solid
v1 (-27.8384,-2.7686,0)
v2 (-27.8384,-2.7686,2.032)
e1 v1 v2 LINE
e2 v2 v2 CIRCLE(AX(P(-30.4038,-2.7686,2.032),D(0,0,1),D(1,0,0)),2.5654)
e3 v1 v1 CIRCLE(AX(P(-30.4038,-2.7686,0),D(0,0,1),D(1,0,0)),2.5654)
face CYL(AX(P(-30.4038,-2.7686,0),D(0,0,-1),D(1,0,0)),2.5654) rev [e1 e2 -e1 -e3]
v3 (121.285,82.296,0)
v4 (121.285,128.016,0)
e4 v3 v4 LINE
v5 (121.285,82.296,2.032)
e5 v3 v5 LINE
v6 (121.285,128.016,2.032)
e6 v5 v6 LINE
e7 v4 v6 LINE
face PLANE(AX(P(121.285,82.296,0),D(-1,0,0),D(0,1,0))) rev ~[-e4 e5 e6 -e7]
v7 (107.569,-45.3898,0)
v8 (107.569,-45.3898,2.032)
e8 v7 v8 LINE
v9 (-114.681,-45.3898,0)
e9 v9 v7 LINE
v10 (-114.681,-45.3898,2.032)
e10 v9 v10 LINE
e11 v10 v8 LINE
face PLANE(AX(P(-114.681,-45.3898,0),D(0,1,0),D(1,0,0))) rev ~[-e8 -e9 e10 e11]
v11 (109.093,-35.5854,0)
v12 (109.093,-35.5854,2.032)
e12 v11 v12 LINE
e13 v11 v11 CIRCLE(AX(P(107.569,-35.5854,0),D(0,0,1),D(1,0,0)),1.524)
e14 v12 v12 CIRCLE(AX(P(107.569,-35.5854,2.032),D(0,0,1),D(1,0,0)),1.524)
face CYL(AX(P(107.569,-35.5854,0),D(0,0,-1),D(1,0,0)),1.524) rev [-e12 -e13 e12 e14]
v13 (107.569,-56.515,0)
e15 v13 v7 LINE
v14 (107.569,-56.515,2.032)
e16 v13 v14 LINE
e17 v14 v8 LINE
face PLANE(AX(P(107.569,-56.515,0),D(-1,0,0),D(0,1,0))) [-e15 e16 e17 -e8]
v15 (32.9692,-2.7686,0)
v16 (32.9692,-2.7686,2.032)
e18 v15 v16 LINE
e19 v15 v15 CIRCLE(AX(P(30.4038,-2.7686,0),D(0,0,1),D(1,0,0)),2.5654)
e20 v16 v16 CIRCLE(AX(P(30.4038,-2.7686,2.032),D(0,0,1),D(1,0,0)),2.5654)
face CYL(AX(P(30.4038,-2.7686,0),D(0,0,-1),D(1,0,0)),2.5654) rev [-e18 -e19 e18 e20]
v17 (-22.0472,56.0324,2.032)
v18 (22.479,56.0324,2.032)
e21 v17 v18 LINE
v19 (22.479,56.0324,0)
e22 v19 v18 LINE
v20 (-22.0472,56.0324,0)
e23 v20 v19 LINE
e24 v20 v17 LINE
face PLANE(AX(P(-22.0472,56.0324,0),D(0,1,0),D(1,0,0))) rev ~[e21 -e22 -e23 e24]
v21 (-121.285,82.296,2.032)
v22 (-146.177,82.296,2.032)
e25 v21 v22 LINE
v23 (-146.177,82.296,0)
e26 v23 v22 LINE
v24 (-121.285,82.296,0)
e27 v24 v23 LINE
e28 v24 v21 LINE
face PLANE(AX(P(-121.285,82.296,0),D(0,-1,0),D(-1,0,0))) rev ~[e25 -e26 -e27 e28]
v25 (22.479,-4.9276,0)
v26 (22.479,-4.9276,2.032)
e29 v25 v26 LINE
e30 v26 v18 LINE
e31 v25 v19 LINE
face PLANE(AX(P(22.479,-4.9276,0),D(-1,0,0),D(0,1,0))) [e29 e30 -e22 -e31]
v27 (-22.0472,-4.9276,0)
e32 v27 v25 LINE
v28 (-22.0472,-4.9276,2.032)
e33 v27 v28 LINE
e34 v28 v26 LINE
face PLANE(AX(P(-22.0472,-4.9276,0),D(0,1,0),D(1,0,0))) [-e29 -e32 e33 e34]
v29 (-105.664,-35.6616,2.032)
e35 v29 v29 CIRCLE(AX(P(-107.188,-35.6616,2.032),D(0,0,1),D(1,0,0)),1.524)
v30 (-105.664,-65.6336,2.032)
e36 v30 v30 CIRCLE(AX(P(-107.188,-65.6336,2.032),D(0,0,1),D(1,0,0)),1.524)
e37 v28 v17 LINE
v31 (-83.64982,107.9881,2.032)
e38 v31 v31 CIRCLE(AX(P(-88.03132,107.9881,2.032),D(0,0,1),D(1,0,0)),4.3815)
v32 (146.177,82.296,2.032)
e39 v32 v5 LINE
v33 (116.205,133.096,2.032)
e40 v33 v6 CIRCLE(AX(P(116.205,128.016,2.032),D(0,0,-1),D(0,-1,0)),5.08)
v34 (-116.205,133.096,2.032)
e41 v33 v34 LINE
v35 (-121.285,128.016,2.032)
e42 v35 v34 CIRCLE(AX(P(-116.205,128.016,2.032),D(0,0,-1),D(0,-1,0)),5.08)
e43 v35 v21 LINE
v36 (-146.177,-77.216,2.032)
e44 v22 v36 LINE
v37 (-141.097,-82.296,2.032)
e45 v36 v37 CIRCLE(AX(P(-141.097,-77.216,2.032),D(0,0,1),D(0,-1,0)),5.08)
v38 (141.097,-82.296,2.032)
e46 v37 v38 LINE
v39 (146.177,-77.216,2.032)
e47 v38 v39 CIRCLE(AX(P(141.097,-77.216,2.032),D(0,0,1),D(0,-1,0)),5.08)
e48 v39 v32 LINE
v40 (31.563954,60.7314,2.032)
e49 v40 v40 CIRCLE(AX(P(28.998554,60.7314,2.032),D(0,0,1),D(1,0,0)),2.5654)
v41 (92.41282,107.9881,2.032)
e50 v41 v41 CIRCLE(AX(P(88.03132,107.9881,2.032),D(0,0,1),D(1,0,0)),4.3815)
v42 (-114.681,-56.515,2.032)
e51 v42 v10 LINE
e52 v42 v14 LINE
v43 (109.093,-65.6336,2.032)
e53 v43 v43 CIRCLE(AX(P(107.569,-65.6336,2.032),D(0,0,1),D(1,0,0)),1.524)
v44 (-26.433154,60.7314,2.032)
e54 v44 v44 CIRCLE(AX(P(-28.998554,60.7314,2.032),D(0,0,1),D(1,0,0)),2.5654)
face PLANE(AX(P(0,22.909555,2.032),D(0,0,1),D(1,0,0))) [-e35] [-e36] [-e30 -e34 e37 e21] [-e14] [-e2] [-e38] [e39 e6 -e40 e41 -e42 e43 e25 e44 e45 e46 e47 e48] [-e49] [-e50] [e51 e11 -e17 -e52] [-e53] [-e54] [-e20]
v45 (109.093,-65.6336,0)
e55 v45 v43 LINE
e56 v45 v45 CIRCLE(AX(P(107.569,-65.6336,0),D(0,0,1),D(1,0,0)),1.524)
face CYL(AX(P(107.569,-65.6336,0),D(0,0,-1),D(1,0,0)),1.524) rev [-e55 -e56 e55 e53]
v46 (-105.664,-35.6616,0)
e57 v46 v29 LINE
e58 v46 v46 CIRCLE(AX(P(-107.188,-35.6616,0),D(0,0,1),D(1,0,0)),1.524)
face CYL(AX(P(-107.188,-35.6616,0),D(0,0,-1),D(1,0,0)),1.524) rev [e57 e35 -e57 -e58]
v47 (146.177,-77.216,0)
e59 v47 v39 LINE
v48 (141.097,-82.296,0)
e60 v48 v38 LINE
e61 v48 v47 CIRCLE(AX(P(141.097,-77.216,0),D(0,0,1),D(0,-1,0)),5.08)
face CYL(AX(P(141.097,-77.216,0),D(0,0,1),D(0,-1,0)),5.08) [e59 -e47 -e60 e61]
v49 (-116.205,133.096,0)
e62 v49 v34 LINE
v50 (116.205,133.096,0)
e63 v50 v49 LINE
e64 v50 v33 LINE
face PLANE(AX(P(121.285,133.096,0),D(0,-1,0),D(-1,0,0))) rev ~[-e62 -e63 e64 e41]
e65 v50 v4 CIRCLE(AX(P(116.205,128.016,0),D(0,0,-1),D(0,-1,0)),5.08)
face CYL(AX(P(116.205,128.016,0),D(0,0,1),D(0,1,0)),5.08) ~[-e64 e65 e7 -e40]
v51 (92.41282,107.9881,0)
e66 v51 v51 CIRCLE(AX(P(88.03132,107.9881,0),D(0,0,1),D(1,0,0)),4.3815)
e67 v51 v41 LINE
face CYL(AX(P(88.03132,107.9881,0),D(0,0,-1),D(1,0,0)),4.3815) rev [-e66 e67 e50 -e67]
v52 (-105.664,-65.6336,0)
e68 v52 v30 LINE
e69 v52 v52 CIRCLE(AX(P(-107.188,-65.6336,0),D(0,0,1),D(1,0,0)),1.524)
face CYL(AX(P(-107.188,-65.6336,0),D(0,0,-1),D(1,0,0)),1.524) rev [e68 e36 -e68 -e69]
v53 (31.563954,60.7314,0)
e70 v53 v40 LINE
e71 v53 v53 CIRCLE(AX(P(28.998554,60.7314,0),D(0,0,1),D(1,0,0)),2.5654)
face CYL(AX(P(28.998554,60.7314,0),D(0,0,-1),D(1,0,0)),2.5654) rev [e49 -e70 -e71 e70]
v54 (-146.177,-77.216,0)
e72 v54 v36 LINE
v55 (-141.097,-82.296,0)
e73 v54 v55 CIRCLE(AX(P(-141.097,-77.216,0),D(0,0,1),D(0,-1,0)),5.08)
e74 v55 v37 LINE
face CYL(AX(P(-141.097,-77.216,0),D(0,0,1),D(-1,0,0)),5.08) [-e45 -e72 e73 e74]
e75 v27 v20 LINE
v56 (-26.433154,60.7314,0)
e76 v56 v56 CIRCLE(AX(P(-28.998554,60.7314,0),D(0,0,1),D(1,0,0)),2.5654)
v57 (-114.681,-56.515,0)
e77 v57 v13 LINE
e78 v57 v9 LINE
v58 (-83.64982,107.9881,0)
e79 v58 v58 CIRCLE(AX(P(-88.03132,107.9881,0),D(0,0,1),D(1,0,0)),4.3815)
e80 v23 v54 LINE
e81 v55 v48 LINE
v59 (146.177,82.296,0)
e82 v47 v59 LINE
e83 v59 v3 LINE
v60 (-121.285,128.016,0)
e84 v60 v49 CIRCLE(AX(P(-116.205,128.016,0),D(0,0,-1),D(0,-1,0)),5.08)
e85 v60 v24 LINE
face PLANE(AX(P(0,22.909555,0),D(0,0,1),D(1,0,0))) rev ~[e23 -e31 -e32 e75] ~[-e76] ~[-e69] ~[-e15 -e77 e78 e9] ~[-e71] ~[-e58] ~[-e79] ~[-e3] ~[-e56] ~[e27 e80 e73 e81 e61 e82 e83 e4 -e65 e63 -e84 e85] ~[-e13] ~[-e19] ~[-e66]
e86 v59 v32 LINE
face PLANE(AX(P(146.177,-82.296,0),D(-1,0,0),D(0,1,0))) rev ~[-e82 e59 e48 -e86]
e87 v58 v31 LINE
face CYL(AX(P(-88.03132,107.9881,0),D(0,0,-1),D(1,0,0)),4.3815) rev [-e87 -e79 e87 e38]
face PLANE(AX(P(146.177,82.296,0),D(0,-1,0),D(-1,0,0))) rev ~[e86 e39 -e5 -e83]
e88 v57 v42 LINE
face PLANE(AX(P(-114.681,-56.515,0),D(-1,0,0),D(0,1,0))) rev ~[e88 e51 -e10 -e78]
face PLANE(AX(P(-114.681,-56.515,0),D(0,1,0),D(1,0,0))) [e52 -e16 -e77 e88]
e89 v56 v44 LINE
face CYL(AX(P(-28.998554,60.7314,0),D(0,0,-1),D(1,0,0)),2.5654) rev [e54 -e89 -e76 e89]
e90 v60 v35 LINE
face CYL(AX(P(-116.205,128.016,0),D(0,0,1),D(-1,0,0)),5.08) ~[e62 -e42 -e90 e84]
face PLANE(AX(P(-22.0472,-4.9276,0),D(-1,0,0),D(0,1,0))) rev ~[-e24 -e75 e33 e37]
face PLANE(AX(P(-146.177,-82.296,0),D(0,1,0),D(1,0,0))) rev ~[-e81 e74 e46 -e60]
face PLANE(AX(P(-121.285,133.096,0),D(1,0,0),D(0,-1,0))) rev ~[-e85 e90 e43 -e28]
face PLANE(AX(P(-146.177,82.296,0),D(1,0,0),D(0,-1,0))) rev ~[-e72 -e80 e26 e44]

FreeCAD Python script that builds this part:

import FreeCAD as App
import Part
import Sketcher
from FreeCAD import Vector
Q = App.Units.Quantity


def edges_at(feature, points):
    """Names of the edges that pass closest to the given points."""
    edges = feature.Shape.Edges
    near = lambda p: min(range(len(edges)), key=lambda i: edges[i].distToShape(Part.Vertex(*p))[0])
    return sorted({f"Edge{near(p) + 1}" for p in points})

doc = App.newDocument("Part")
body = doc.addObject("PartDesign::Body", "Body")

# Sketch on XY plane
sketch1 = doc.addObject("Sketcher::SketchObject", "Sketch")
body.addObject(sketch1)
sketch1.AttachmentSupport = (doc.XY_Plane, [""])
sketch1.MapMode = "FlatFace"
sketch1.addGeometry(Part.LineSegment(Vector(-146.2, 82.3, 0), Vector(-146.2, -82.3, 0)), False)
sketch1.addGeometry(Part.LineSegment(Vector(-146.2, -82.3, 0), Vector(146.2, -82.3, 0)), False)
sketch1.addGeometry(Part.LineSegment(Vector(146.2, -82.3, 0), Vector(146.2, 82.3, 0)), False)
sketch1.addGeometry(Part.LineSegment(Vector(146.2, 82.3, 0), Vector(121.3, 82.3, 0)), False)
sketch1.addGeometry(Part.LineSegment(Vector(121.3, 82.3, 0), Vector(121.3, 133.1, 0)), False)
sketch1.addGeometry(Part.LineSegment(Vector(121.3, 133.1, 0), Vector(-121.3, 133.1, 0)), False)
sketch1.addGeometry(Part.LineSegment(Vector(-121.3, 133.1, 0), Vector(-121.3, 82.3, 0)), False)
sketch1.addGeometry(Part.LineSegment(Vector(-121.3, 82.3, 0), Vector(-146.2, 82.3, 0)), False)
sketch1.addGeometry(Part.Circle(Vector(-107.2, -65.6, 0), Vector(0, 0, 1), 1.5), False)
sketch1.addGeometry(Part.Circle(Vector(-107.2, -35.7, 0), Vector(0, 0, 1), 1.5), False)
sketch1.addGeometry(Part.LineSegment(Vector(107.6, -56.5, 0), Vector(-114.7, -56.5, 0)), False)
sketch1.addGeometry(Part.LineSegment(Vector(-114.7, -56.5, 0), Vector(-114.7, -45.4, 0)), False)
sketch1.addGeometry(Part.LineSegment(Vector(-114.7, -45.4, 0), Vector(107.6, -45.4, 0)), False)
sketch1.addGeometry(Part.LineSegment(Vector(107.6, -45.4, 0), Vector(107.6, -56.5, 0)), False)
sketch1.addGeometry(Part.Circle(Vector(-30.4, -2.8, 0), Vector(0, 0, 1), 2.6), False)
sketch1.addGeometry(Part.Circle(Vector(107.6, -65.6, 0), Vector(0, 0, 1), 1.5), False)
sketch1.addGeometry(Part.Circle(Vector(107.6, -35.6, 0), Vector(0, 0, 1), 1.5), False)
sketch1.addGeometry(Part.Circle(Vector(30.4, -2.8, 0), Vector(0, 0, 1), 2.6), False)
sketch1.addGeometry(Part.Circle(Vector(-29, 60.7, 0), Vector(0, 0, 1), 2.6), False)
sketch1.addGeometry(Part.Circle(Vector(-88, 108, 0), Vector(0, 0, 1), 4.4), False)
sketch1.addGeometry(Part.LineSegment(Vector(22.5, -4.9, 0), Vector(-22, -4.9, 0)), False)
sketch1.addGeometry(Part.LineSegment(Vector(-22, -4.9, 0), Vector(-22, 56, 0)), False)
sketch1.addGeometry(Part.LineSegment(Vector(-22, 56, 0), Vector(22.5, 56, 0)), False)
sketch1.addGeometry(Part.LineSegment(Vector(22.5, 56, 0), Vector(22.5, -4.9, 0)), False)
sketch1.addGeometry(Part.Circle(Vector(29, 60.7, 0), Vector(0, 0, 1), 2.6), False)
sketch1.addGeometry(Part.Circle(Vector(88, 108, 0), Vector(0, 0, 1), 4.4), False)
sketch1.addConstraint(Sketcher.Constraint("Coincident", 0, 2, 1, 1))
sketch1.addConstraint(Sketcher.Constraint("Coincident", 1, 2, 2, 1))
sketch1.addConstraint(Sketcher.Constraint("Coincident", 2, 2, 3, 1))
sketch1.addConstraint(Sketcher.Constraint("Coincident", 3, 2, 4, 1))
sketch1.addConstraint(Sketcher.Constraint("Coincident", 4, 2, 5, 1))
sketch1.addConstraint(Sketcher.Constraint("Coincident", 5, 2, 6, 1))
sketch1.addConstraint(Sketcher.Constraint("Coincident", 6, 2, 7, 1))
sketch1.addConstraint(Sketcher.Constraint("Coincident", 7, 2, 0, 1))
sketch1.addConstraint(Sketcher.Constraint("Coincident", 10, 2, 11, 1))
sketch1.addConstraint(Sketcher.Constraint("Coincident", 11, 2, 12, 1))
sketch1.addConstraint(Sketcher.Constraint("Coincident", 12, 2, 13, 1))
sketch1.addConstraint(Sketcher.Constraint("Coincident", 13, 2, 10, 1))
sketch1.addConstraint(Sketcher.Constraint("Coincident", 20, 2, 21, 1))
sketch1.addConstraint(Sketcher.Constraint("Coincident", 21, 2, 22, 1))
sketch1.addConstraint(Sketcher.Constraint("Coincident", 22, 2, 23, 1))
sketch1.addConstraint(Sketcher.Constraint("Coincident", 23, 2, 20, 1))
sketch1.addConstraint(Sketcher.Constraint("Vertical", 0))
sketch1.addConstraint(Sketcher.Constraint("Horizontal", 1))
sketch1.addConstraint(Sketcher.Constraint("Vertical", 2))
sketch1.addConstraint(Sketcher.Constraint("Horizontal", 3))
sketch1.addConstraint(Sketcher.Constraint("Vertical", 4))
sketch1.addConstraint(Sketcher.Constraint("Horizontal", 5))
sketch1.addConstraint(Sketcher.Constraint("Vertical", 6))
sketch1.addConstraint(Sketcher.Constraint("Horizontal", 7))
sketch1.addConstraint(Sketcher.Constraint("Horizontal", 10))
sketch1.addConstraint(Sketcher.Constraint("Vertical", 11))
sketch1.addConstraint(Sketcher.Constraint("Horizontal", 12))
sketch1.addConstraint(Sketcher.Constraint("Vertical", 13))
sketch1.addConstraint(Sketcher.Constraint("Horizontal", 20))
sketch1.addConstraint(Sketcher.Constraint("Vertical", 21))
sketch1.addConstraint(Sketcher.Constraint("Horizontal", 22))
sketch1.addConstraint(Sketcher.Constraint("Vertical", 23))
sketch1.addConstraint(Sketcher.Constraint("Equal", 8, 9))
sketch1.addConstraint(Sketcher.Constraint("Equal", 9, 15))
sketch1.addConstraint(Sketcher.Constraint("Equal", 15, 16))
sketch1.addConstraint(Sketcher.Constraint("Equal", 14, 17))
sketch1.addConstraint(Sketcher.Constraint("Equal", 17, 18))
sketch1.addConstraint(Sketcher.Constraint("Equal", 18, 24))
sketch1.addConstraint(Sketcher.Constraint("Equal", 19, 25))
sketch1.addConstraint(Sketcher.Constraint("Symmetric", 0, 2, 2, 2, -1, 1))
sketch1.addConstraint(Sketcher.Constraint("Symmetric", 14, 3, 17, 3, -2))
sketch1.addConstraint(Sketcher.Constraint("Symmetric", 18, 3, 24, 3, -2))
sketch1.addConstraint(Sketcher.Constraint("Symmetric", 19, 3, 25, 3, -2))
sketch1.addConstraint(Sketcher.Constraint("Symmetric", 3, 2, 6, 2, -2))
sketch1.addConstraint(Sketcher.Constraint("Horizontal", 8, 3, 15, 3))
sketch1.addConstraint(Sketcher.Constraint("Vertical", 8, 3, 9, 3))
sketch1.addConstraint(Sketcher.Constraint("Vertical", 15, 3, 16, 3))
sketch1.addConstraint(Sketcher.Constraint("Vertical", 16, 3, 12, 2))
sketch1.addConstraint(Sketcher.Constraint("Diameter", 8, Q("0.12 in")))
sketch1.addConstraint(Sketcher.Constraint("DistanceY", 4, 1, 4, 2, Q("2 in")))
sketch1.addConstraint(Sketcher.Constraint("Diameter", 14, Q("0.202 in")))
sketch1.addConstraint(Sketcher.Constraint("Diameter", 19, Q("0.345 in")))
sketch1.addConstraint(Sketcher.Constraint("DistanceY", 21, 1, 21, 2, Q("2.4 in")))
sketch1.addConstraint(Sketcher.Constraint("DistanceX", 1, 1, 1, 2, Q("11.51 in")))
sketch1.addConstraint(Sketcher.Constraint("DistanceX", 3, 2, 3, 1, Q("0.98 in")))
sketch1.addConstraint(Sketcher.Constraint("DistanceX", 10, 2, 10, 1, Q("8.75 in")))
sketch1.addConstraint(Sketcher.Constraint("DistanceY", 0, 2, 0, 1, Q("6.48 in")))
sketch1.addConstraint(Sketcher.Constraint("DistanceY", 14, 3, 18, 3, Q("2.5 in")))
sketch1.addConstraint(Sketcher.Constraint("DistanceX", 20, 2, 20, 1, Q("1.753 in")))
sketch1.addConstraint(Sketcher.Constraint("DistanceY", 11, 1, 11, 2, Q("0.438 in")))
sketch1.addConstraint(Sketcher.Constraint("DistanceX", 8, 3, -1, 1, Q("4.22 in")))
sketch1.addConstraint(Sketcher.Constraint("DistanceY", 8, 3, 9, 3, Q("1.18 in")))
sketch1.addConstraint(Sketcher.Constraint("DistanceX", 15, 3, 1, 2, Q("1.52 in")))
sketch1.addConstraint(Sketcher.Constraint("DistanceY", 9, 3, 20, 2, Q("1.21 in")))
sketch1.addConstraint(Sketcher.Constraint("DistanceY", 8, 3, -1, 1, Q("2.584 in")))
sketch1.addConstraint(Sketcher.Constraint("DistanceX", 14, 3, -1, 1, Q("1.197 in")))
sketch1.addConstraint(Sketcher.Constraint("DistanceY", 14, 3, -1, 1, Q("0.109 in")))
sketch1.addConstraint(Sketcher.Constraint("DistanceY", 16, 3, -1, 1, Q("1.401 in")))
sketch1.addConstraint(Sketcher.Constraint("DistanceY", 10, 2, -1, 1, Q("2.225 in")))
sketch1.addConstraint(Sketcher.Constraint("DistanceX", 20, 2, -1, 1, Q("0.868 in")))
sketch1.addConstraint(Sketcher.Constraint("DistanceX", 19, 3, -1, 1, Q("3.4658 in")))
sketch1.addConstraint(Sketcher.Constraint("DistanceY", -1, 1, 19, 3, Q("4.2515 in")))
sketch1.addConstraint(Sketcher.Constraint("DistanceX", 18, 3, -1, 1, 28.998554))
pad1 = doc.addObject("PartDesign::Pad", "Pad")
body.addObject(pad1)
pad1.Profile = sketch1
pad1.Length = Q("0.08 in")
doc.recompute()

fillet = doc.addObject("PartDesign::Fillet", "Fillet")
body.addObject(fillet)
fillet.Base = (pad1, edges_at(pad1, [
    (121.285, 133.096, 1.016),
    (-121.285, 133.096, 1.016),
    (146.177, -82.296, 1.016),
    (-146.177, -82.296, 1.016),
]))
fillet.Radius = Q("0.2 in")

doc.recompute()
